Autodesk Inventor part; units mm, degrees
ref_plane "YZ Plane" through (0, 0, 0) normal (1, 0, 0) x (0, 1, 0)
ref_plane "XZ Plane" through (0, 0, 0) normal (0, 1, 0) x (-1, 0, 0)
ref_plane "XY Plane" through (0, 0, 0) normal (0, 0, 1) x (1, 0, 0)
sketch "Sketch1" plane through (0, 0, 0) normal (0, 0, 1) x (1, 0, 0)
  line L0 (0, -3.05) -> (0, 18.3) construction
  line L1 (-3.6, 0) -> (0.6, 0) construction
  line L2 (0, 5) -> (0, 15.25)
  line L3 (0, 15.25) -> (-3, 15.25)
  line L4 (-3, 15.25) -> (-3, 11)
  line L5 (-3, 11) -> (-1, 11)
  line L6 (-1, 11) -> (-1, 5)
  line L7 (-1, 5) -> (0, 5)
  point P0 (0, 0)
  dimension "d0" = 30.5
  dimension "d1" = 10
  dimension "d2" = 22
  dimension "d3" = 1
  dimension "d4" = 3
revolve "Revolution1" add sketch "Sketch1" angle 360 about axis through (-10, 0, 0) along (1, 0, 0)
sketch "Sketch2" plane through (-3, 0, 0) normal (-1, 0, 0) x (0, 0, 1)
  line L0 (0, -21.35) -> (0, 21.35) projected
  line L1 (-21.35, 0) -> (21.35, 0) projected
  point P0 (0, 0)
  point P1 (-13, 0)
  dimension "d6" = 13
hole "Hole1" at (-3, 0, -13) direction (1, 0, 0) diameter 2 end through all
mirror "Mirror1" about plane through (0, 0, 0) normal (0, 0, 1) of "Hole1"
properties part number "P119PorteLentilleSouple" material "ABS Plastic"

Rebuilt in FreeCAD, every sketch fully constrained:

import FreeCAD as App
import Part
import Sketcher
from FreeCAD import Vector

doc = App.newDocument("Part")
body = doc.addObject("PartDesign::Body", "Body")

# Sketch on XY plane
sketch1 = body.newObject("Sketcher::SketchObject", "Sketch")
sketch1.AttachmentSupport = (doc.getObject("XY_Plane"), [""])
sketch1.MapMode = "FlatFace"
sketch1.addGeometry([
    Part.LineSegment(Vector(-1, 5, 0), Vector(0, 5, 0)),  # 0
    Part.LineSegment(Vector(0, 5, 0), Vector(0, 15.2, 0)),  # 1
    Part.LineSegment(Vector(0, 15.2, 0), Vector(-3, 15.2, 0)),  # 2
    Part.LineSegment(Vector(-3, 15.2, 0), Vector(-3, 11, 0)),  # 3
    Part.LineSegment(Vector(-3, 11, 0), Vector(-1, 11, 0)),  # 4
    Part.LineSegment(Vector(-1, 11, 0), Vector(-1, 5, 0)),  # 5
], False)
sketch1.addConstraint([
    Sketcher.Constraint("Coincident", 0, 2, 1, 1),
    Sketcher.Constraint("Coincident", 1, 2, 2, 1),
    Sketcher.Constraint("Coincident", 2, 2, 3, 1),
    Sketcher.Constraint("Coincident", 3, 2, 4, 1),
    Sketcher.Constraint("Coincident", 4, 2, 5, 1),
    Sketcher.Constraint("Coincident", 5, 2, 0, 1),
    Sketcher.Constraint("Horizontal", 0),
    Sketcher.Constraint("Vertical", 1),
    Sketcher.Constraint("Horizontal", 2),
    Sketcher.Constraint("Vertical", 3),
    Sketcher.Constraint("Horizontal", 4),
    Sketcher.Constraint("Vertical", 5),
    Sketcher.Constraint("PointOnObject", 0, 2, -2),
    Sketcher.Constraint("DistanceX", 0, 1, 0, 2, 1.0),
    Sketcher.Constraint("DistanceX", 2, 2, 2, 1, 3.0),
    Sketcher.Constraint("DistanceY", 5, 2, 5, 1, 6.0),
    Sketcher.Constraint("DistanceY", -1, 1, 0, 2, 5.0),
    Sketcher.Constraint("DistanceY", 1, 1, 1, 2, 10.25),
])
revolution = body.newObject("PartDesign::Revolution", "Revolution")
revolution.Profile = sketch1
revolution.ReferenceAxis = (sketch1, ["H_Axis"])
revolution.Angle = 360

# Sketch on YZ plane
sketch2 = body.newObject("Sketcher::SketchObject", "Sketch001")
sketch2.AttachmentSupport = (doc.getObject("YZ_Plane"), [""])
sketch2.MapMode = "FlatFace"
sketch2.AttachmentOffset = App.Placement(Vector(0, 0, -3), App.Rotation())
sketch2.addGeometry(Part.Circle(Vector(0, -13, 0), Vector(0, 0, 1), 1), False)
sketch2.addConstraint([
    Sketcher.Constraint("PointOnObject", 0, 3, -2),
    Sketcher.Constraint("Diameter", 0, 2.0),
    Sketcher.Constraint("DistanceY", 0, 3, -1, 1, 13.0),
])
doc.recompute()
hole = body.newObject("PartDesign::Hole", "Hole")
hole.Profile = sketch2
hole.ThreadType = "None"
hole.Diameter = 2
hole.DepthType = "ThroughAll"
hole.Reversed = True
doc.recompute()

mirrored = body.newObject("PartDesign::Mirrored", "Mirrored")
mirrored.Originals = [hole]
mirrored.MirrorPlane = (doc.getObject("XY_Plane"), [""])
body.Tip = mirrored

doc.recompute()
